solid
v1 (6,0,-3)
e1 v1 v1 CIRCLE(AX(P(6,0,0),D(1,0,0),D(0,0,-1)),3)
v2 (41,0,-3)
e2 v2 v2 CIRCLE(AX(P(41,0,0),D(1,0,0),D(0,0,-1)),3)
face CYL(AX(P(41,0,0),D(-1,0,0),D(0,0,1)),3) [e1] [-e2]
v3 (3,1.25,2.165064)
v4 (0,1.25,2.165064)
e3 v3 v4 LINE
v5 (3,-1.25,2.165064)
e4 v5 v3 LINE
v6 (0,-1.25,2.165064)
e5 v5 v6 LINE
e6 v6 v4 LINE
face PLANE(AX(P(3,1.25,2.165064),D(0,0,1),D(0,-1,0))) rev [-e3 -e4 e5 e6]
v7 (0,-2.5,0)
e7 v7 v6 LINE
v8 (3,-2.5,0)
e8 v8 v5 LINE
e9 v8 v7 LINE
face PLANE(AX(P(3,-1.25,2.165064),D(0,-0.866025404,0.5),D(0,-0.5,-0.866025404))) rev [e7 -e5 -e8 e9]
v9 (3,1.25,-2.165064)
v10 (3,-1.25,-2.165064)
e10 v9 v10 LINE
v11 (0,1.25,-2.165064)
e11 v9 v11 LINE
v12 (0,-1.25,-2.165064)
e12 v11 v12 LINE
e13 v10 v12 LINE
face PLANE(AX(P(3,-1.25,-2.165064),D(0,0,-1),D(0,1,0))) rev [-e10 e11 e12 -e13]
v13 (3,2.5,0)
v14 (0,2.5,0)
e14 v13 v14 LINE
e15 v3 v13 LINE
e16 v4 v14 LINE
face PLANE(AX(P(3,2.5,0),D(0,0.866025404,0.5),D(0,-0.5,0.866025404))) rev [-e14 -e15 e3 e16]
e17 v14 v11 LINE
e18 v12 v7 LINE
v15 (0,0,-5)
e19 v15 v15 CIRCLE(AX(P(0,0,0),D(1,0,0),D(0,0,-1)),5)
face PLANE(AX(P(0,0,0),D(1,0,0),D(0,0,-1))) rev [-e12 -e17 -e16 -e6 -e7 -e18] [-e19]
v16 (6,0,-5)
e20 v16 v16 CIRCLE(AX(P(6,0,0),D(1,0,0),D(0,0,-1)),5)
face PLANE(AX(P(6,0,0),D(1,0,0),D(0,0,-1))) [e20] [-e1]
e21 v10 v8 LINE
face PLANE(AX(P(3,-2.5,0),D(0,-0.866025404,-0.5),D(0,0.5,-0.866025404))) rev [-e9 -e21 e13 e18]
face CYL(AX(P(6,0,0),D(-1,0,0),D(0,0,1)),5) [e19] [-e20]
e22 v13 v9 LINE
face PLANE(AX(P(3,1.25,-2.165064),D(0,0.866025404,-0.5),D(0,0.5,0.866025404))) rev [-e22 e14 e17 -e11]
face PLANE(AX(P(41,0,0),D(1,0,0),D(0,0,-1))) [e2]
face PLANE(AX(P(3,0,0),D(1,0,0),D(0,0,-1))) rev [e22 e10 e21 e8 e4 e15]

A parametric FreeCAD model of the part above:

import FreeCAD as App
import Part
import Sketcher

V = App.Vector
Q = App.Units.Quantity

doc = App.newDocument("Part")
body = doc.addObject("PartDesign::Body", "Body")

sketch1 = body.newObject("Sketcher::SketchObject", "Sketch")
sketch1.AttachmentSupport = (doc.getObject("YZ_Plane"), [""])
sketch1.MapMode = "FlatFace"
sketch1.addGeometry(Part.Circle(V(0, 0, 0), V(0, 0, 1), 5), False)
sketch1.addConstraint([
    Sketcher.Constraint("Coincident", 0, 3, -1, 1),
    Sketcher.Constraint("Diameter", 0, Q("10 mm")),
])
pad1 = body.newObject("PartDesign::Pad", "Pad")
pad1.Profile = sketch1
pad1.Length = 6

sketch2 = body.newObject("Sketcher::SketchObject", "Sketch001")
sketch2.AttachmentSupport = (doc.getObject("YZ_Plane"), [""])
sketch2.MapMode = "FlatFace"
sketch2.addGeometry([
    Part.LineSegment(V(2.5, 0, 0), V(1.25, -2.165064, 0)),
    Part.LineSegment(V(1.25, -2.165064, 0), V(-1.25, -2.165064, 0)),
    Part.LineSegment(V(-1.25, -2.165064, 0), V(-2.5, 0, 0)),
    Part.LineSegment(V(-2.5, 0, 0), V(-1.25, 2.165064, 0)),
    Part.LineSegment(V(-1.25, 2.165064, 0), V(1.25, 2.165064, 0)),
    Part.LineSegment(V(1.25, 2.165064, 0), V(2.5, 0, 0)),
], False)
sketch2.addConstraint([
    Sketcher.Constraint("Coincident", 0, 2, 1, 1),
    Sketcher.Constraint("Coincident", 1, 2, 2, 1),
    Sketcher.Constraint("Coincident", 2, 2, 3, 1),
    Sketcher.Constraint("Coincident", 3, 2, 4, 1),
    Sketcher.Constraint("Coincident", 4, 2, 5, 1),
    Sketcher.Constraint("Coincident", 5, 2, 0, 1),
    Sketcher.Constraint("Horizontal", 1),
    Sketcher.Constraint("Horizontal", 4),
    Sketcher.Constraint("Symmetric", 0, 2, 3, 2, -1, 1),
    Sketcher.Constraint("Symmetric", 2, 2, 5, 2, -1, 1),
    Sketcher.Constraint("PointOnObject", 2, 2, -1),
    Sketcher.Constraint("Parallel", 2, 5),
    Sketcher.Constraint("Vertical", 1, 2, 3, 2),
    Sketcher.Constraint("Angle", 0, Q("-120 deg")),
    Sketcher.Constraint("DistanceX", 1, 2, 1, 1, Q("2.5 mm")),
    Sketcher.Constraint("DistanceX", 2, 2, 5, 2, Q("5 mm")),
])
pocket1 = body.newObject("PartDesign::Pocket", "Pocket")
pocket1.Profile = sketch2
pocket1.Length = 3
pocket1.Reversed = True

sketch3 = body.newObject("Sketcher::SketchObject", "Sketch002")
sketch3.AttachmentSupport = (doc.getObject("YZ_Plane"), [""])
sketch3.MapMode = "FlatFace"
sketch3.AttachmentOffset = App.Placement(V(0, 0, 6), App.Rotation())
sketch3.addGeometry(Part.Circle(V(0, 0, 0), V(0, 0, 1), 3), False)
sketch3.addConstraint([
    Sketcher.Constraint("Coincident", 0, 3, -1, 1),
    Sketcher.Constraint("Diameter", 0, Q("6 mm")),
])
pad2 = body.newObject("PartDesign::Pad", "Pad001")
pad2.Profile = sketch3
pad2.Length = 35

doc.recompute()
